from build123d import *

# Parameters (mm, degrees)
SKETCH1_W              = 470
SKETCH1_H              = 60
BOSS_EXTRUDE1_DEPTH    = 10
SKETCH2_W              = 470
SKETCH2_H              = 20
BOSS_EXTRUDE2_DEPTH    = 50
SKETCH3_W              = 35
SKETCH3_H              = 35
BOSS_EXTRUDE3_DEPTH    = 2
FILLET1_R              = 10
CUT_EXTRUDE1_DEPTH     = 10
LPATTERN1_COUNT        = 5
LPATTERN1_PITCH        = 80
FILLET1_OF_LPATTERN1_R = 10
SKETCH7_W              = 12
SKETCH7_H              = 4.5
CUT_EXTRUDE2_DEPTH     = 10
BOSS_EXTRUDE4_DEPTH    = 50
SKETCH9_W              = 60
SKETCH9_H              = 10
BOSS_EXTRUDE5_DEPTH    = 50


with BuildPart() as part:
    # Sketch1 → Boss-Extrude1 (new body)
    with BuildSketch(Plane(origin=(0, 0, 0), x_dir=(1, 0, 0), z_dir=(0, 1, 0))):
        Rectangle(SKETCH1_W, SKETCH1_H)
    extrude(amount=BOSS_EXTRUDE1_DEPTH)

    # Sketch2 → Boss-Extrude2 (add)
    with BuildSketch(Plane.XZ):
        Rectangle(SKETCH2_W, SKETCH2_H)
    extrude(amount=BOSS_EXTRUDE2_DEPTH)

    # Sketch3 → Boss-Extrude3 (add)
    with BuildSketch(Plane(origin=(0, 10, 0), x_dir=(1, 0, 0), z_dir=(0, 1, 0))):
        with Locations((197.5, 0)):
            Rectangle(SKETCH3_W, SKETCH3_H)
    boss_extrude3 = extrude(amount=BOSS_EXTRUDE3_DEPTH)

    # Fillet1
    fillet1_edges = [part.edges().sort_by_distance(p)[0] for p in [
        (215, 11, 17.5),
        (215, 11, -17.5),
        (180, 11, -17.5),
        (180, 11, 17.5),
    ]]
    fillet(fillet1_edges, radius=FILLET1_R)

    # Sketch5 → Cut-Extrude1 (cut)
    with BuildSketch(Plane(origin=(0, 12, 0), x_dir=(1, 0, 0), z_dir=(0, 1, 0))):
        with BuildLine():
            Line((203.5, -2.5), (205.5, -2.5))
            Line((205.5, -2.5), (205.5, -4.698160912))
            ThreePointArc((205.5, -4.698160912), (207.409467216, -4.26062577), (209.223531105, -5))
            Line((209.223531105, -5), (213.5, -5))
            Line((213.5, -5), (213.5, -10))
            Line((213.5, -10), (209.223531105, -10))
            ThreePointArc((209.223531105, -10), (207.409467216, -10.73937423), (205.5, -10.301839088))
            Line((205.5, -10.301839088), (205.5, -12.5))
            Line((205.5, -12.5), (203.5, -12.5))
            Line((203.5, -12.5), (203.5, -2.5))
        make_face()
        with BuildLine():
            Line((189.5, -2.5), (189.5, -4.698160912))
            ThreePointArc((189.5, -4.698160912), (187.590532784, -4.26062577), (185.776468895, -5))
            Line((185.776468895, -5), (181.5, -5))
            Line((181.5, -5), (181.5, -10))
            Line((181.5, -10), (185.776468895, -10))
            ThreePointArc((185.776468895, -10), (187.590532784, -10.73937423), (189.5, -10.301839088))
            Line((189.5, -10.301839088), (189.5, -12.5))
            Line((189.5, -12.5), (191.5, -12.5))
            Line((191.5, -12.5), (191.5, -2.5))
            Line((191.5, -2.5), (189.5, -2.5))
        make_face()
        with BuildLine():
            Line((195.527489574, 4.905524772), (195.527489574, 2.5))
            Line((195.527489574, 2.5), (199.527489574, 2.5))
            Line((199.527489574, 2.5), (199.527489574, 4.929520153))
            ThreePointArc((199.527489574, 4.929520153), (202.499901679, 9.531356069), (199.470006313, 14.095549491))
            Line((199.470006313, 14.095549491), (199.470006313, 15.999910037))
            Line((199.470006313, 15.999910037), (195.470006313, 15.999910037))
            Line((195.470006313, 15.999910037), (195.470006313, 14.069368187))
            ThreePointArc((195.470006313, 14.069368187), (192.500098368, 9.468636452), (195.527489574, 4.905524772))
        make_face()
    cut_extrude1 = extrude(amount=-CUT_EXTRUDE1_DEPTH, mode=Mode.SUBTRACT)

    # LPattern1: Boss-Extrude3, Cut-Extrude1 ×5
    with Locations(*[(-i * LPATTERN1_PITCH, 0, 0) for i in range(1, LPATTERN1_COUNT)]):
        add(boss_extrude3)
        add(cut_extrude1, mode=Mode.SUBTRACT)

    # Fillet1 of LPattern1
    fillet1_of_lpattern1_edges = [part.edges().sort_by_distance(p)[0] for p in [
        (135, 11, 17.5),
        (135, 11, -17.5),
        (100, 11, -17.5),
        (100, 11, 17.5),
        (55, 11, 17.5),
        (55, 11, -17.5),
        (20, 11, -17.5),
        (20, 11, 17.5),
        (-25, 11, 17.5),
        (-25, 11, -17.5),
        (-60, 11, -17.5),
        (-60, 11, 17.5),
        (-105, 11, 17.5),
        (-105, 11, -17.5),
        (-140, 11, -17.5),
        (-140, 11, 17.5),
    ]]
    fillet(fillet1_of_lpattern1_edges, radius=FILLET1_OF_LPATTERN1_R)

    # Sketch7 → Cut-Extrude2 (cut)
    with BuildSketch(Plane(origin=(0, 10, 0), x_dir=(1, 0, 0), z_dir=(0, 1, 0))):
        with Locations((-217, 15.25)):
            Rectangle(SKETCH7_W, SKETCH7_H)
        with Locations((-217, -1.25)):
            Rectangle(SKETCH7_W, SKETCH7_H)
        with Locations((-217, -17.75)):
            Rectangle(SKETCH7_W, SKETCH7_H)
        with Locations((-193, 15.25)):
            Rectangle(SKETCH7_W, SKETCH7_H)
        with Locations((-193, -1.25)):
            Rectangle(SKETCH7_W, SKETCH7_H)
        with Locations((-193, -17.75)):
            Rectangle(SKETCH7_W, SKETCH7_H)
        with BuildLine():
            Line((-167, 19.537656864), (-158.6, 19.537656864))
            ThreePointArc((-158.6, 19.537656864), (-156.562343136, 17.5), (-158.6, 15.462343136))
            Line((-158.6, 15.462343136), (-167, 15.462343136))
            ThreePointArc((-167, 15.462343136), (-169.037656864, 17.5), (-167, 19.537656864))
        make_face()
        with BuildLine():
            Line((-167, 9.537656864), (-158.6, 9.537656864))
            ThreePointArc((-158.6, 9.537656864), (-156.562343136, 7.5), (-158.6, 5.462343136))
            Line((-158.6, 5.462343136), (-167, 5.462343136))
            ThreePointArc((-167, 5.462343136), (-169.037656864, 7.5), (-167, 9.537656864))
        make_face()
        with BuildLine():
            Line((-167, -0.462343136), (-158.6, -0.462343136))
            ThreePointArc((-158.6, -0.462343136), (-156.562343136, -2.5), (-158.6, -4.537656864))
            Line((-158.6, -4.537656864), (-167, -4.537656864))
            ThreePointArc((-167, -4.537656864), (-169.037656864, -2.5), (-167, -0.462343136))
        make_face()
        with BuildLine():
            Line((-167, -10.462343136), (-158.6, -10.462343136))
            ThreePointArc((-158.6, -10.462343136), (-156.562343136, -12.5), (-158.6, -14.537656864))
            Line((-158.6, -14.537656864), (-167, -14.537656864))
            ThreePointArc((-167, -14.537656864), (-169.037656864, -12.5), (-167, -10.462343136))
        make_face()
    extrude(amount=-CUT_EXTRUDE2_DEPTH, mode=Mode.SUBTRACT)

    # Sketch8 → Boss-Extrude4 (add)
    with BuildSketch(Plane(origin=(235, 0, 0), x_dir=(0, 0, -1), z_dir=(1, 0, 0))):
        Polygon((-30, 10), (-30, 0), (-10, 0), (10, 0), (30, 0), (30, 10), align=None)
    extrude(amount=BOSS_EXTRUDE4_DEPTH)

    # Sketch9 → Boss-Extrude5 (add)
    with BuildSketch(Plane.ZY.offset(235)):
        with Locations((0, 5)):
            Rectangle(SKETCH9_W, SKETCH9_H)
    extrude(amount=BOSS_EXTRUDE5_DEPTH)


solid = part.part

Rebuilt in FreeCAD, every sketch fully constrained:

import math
import FreeCAD as App
import Part
import Sketcher

V = App.Vector
Q = App.Units.Quantity


def edges_at(feature, points):
    """Names of the edges that pass closest to the given points."""
    edges = feature.Shape.Edges
    near = lambda p: min(range(len(edges)), key=lambda i: edges[i].distToShape(Part.Vertex(*p))[0])
    return sorted({f"Edge{near(p) + 1}" for p in points})


def add_polygon(sketch, points):
    """Adds a closed chain of lines whose ends are joined by coincident constraints."""
    first, n = sketch.GeometryCount, len(points)
    for a, b in zip(points, points[1:] + points[:1]):
        sketch.addGeometry(Part.LineSegment(App.Vector(*a, 0), App.Vector(*b, 0)), False)
    for i in range(n):
        sketch.addConstraint(Sketcher.Constraint("Coincident", first + i, 2, first + (i + 1) % n, 1))

doc = App.newDocument("Part")
body = doc.addObject("PartDesign::Body", "Body")

# Sketch on XZ plane
sketch1 = body.newObject("Sketcher::SketchObject", "Sketch")
sketch1.AttachmentSupport = (doc.getObject("XZ_Plane"), [""])
sketch1.MapMode = "FlatFace"
add_polygon(sketch1, [(-235, -30), (-235, 30), (235, 30), (235, -30)])  # lines 0-3
sketch1.addConstraint([
    Sketcher.Constraint("Vertical", 0),
    Sketcher.Constraint("Horizontal", 1),
    Sketcher.Constraint("Vertical", 2),
    Sketcher.Constraint("Horizontal", 3),
    Sketcher.Constraint("Symmetric", 0, 2, 2, 2, -1, 1),
    Sketcher.Constraint("DistanceX", 1, 1, 1, 2, Q("470 mm")),
    Sketcher.Constraint("DistanceY", 0, 1, 0, 2, Q("60 mm")),
])
pad1 = body.newObject("PartDesign::Pad", "Pad")
pad1.Profile = sketch1
pad1.Length = 10
pad1.Reversed = True

# Sketch on XZ plane
sketch2 = body.newObject("Sketcher::SketchObject", "Sketch001")
sketch2.AttachmentSupport = (doc.getObject("XZ_Plane"), [""])
sketch2.MapMode = "FlatFace"
add_polygon(sketch2, [(-235, 10), (-235, -10), (235, -10), (235, 10)])  # lines 0-3
sketch2.addConstraint([
    Sketcher.Constraint("Vertical", 0),
    Sketcher.Constraint("Horizontal", 1),
    Sketcher.Constraint("Vertical", 2),
    Sketcher.Constraint("Horizontal", 3),
    Sketcher.Constraint("Symmetric", 0, 2, 2, 2, -1, 1),
    Sketcher.Constraint("DistanceX", 1, 1, 1, 2, Q("470 mm")),
    Sketcher.Constraint("DistanceY", 0, 2, 0, 1, Q("20 mm")),
])
pad2 = body.newObject("PartDesign::Pad", "Pad001")
pad2.Profile = sketch2
pad2.Length = 50

# Sketch on XZ plane
sketch3 = body.newObject("Sketcher::SketchObject", "Sketch002")
sketch3.AttachmentSupport = (doc.getObject("XZ_Plane"), [""])
sketch3.MapMode = "FlatFace"
sketch3.AttachmentOffset = App.Placement(V(0, 0, -10), App.Rotation())
add_polygon(sketch3, [(180, -18), (180, 18), (215, 18), (215, -18)])  # lines 0-3
sketch3.addConstraint([
    Sketcher.Constraint("Vertical", 0),
    Sketcher.Constraint("Horizontal", 1),
    Sketcher.Constraint("Vertical", 2),
    Sketcher.Constraint("Horizontal", 3),
    Sketcher.Constraint("Equal", 3, 0),
    Sketcher.Constraint("DistanceX", 1, 1, 1, 2, Q("35 mm")),
    Sketcher.Constraint("DistanceX", -1, 1, 0, 2, Q("180 mm")),
    Sketcher.Constraint("DistanceY", -1, 1, 0, 2, Q("17.5 mm")),
])
pad3 = body.newObject("PartDesign::Pad", "Pad002")
pad3.Profile = sketch3
pad3.Length = 2
pad3.Reversed = True
doc.recompute()

fillet = body.newObject("PartDesign::Fillet", "Fillet")
fillet.Base = (pad3, edges_at(pad3, [
    (215, 11, 17.5),
    (215, 11, -17.5),
    (180, 11, -17.5),
    (180, 11, 17.5),
]))
fillet.Radius = 10

# Sketch on XZ plane
sketch4 = body.newObject("Sketcher::SketchObject", "Sketch003")
sketch4.AttachmentSupport = (doc.getObject("XZ_Plane"), [""])
sketch4.MapMode = "FlatFace"
sketch4.AttachmentOffset = App.Placement(V(0, 0, -12), App.Rotation())
sketch4.addGeometry([
    Part.LineSegment(V(205.5, 2.5, 0), V(203.5, 2.5, 0)),  # 0
    Part.LineSegment(V(203.5, 2.5, 0), V(203.5, 12.5, 0)),  # 1
    Part.LineSegment(V(203.5, 12.5, 0), V(205.5, 12.5, 0)),  # 2
    Part.LineSegment(V(205.5, 12.5, 0), V(205.5, 10.3, 0)),  # 3
    Part.ArcOfCircle(Part.Circle(V(207.1, 7.5, 0), V(0, 0, 1), 3.2), math.radians(50), math.radians(120)),  # 4
    Part.LineSegment(V(209.2, 10, 0), V(213.5, 10, 0)),  # 5
    Part.LineSegment(V(213.5, 10, 0), V(213.5, 5, 0)),  # 6
    Part.LineSegment(V(213.5, 5, 0), V(209.2, 5, 0)),  # 7
    Part.ArcOfCircle(Part.Circle(V(207.1, 7.5, 0), V(0, 0, 1), 3.2), math.radians(-120), math.radians(-50)),  # 8
    Part.LineSegment(V(205.5, 4.7, 0), V(205.5, 2.5, 0)),  # 9
    Part.LineSegment(V(189.5, 2.5, 0), V(189.5, 4.7, 0)),  # 10
    Part.ArcOfCircle(Part.Circle(V(187.9, 7.5, 0), V(0, 0, 1), 3.2), math.radians(-130), math.radians(-60)),  # 11
    Part.LineSegment(V(185.8, 5, 0), V(181.5, 5, 0)),  # 12
    Part.LineSegment(V(181.5, 5, 0), V(181.5, 10, 0)),  # 13
    Part.LineSegment(V(181.5, 10, 0), V(185.8, 10, 0)),  # 14
    Part.ArcOfCircle(Part.Circle(V(187.9, 7.5, 0), V(0, 0, 1), 3.2), math.radians(60), math.radians(130)),  # 15
    Part.LineSegment(V(189.5, 10.3, 0), V(189.5, 12.5, 0)),  # 16
    Part.LineSegment(V(189.5, 12.5, 0), V(191.5, 12.5, 0)),  # 17
    Part.LineSegment(V(191.5, 12.5, 0), V(191.5, 2.5, 0)),  # 18
    Part.LineSegment(V(191.5, 2.5, 0), V(189.5, 2.5, 0)),  # 19
    Part.LineSegment(V(195.5, -4.9, 0), V(195.5, -2.5, 0)),  # 20
    Part.LineSegment(V(195.5, -2.5, 0), V(199.5, -2.5, 0)),  # 21
    Part.LineSegment(V(199.5, -2.5, 0), V(199.5, -4.9, 0)),  # 22
    Part.ArcOfCircle(Part.Circle(V(197.5, -9.5, 0), V(0, 0, 1), 5), math.radians(-67), math.radians(66)),  # 23
    Part.LineSegment(V(199.5, -14.1, 0), V(199.5, -16, 0)),  # 24
    Part.LineSegment(V(199.5, -16, 0), V(195.5, -16, 0)),  # 25
    Part.LineSegment(V(195.5, -16, 0), V(195.5, -14.1, 0)),  # 26
    Part.ArcOfCircle(Part.Circle(V(197.5, -9.5, 0), V(0, 0, 1), 5), math.radians(113), math.radians(246)),  # 27
], False)
sketch4.addConstraint([
    Sketcher.Constraint("Coincident", 0, 2, 1, 1),
    Sketcher.Constraint("Coincident", 1, 2, 2, 1),
    Sketcher.Constraint("Coincident", 2, 2, 3, 1),
    Sketcher.Constraint("Coincident", 3, 2, 4, 2),
    Sketcher.Constraint("Coincident", 4, 1, 5, 1),
    Sketcher.Constraint("Coincident", 5, 2, 6, 1),
    Sketcher.Constraint("Coincident", 6, 2, 7, 1),
    Sketcher.Constraint("Coincident", 7, 2, 8, 2),
    Sketcher.Constraint("Coincident", 8, 1, 9, 1),
    Sketcher.Constraint("Coincident", 9, 2, 0, 1),
    Sketcher.Constraint("Coincident", 10, 2, 11, 2),
    Sketcher.Constraint("Coincident", 11, 1, 12, 1),
    Sketcher.Constraint("Coincident", 12, 2, 13, 1),
    Sketcher.Constraint("Coincident", 13, 2, 14, 1),
    Sketcher.Constraint("Coincident", 14, 2, 15, 2),
    Sketcher.Constraint("Coincident", 15, 1, 16, 1),
    Sketcher.Constraint("Coincident", 16, 2, 17, 1),
    Sketcher.Constraint("Coincident", 17, 2, 18, 1),
    Sketcher.Constraint("Coincident", 18, 2, 19, 1),
    Sketcher.Constraint("Coincident", 19, 2, 10, 1),
    Sketcher.Constraint("Coincident", 20, 2, 21, 1),
    Sketcher.Constraint("Coincident", 21, 2, 22, 1),
    Sketcher.Constraint("Coincident", 22, 2, 23, 2),
    Sketcher.Constraint("Coincident", 23, 1, 24, 1),
    Sketcher.Constraint("Coincident", 24, 2, 25, 1),
    Sketcher.Constraint("Coincident", 25, 2, 26, 1),
    Sketcher.Constraint("Coincident", 26, 2, 27, 2),
    Sketcher.Constraint("Coincident", 27, 1, 20, 1),
    Sketcher.Constraint("Horizontal", 0),
    Sketcher.Constraint("Vertical", 1),
    Sketcher.Constraint("Horizontal", 2),
    Sketcher.Constraint("Vertical", 3),
    Sketcher.Constraint("Horizontal", 5),
    Sketcher.Constraint("Vertical", 6),
    Sketcher.Constraint("Horizontal", 7),
    Sketcher.Constraint("Vertical", 9),
    Sketcher.Constraint("Vertical", 10),
    Sketcher.Constraint("Horizontal", 12),
    Sketcher.Constraint("Vertical", 13),
    Sketcher.Constraint("Horizontal", 14),
    Sketcher.Constraint("Vertical", 16),
    Sketcher.Constraint("Horizontal", 17),
    Sketcher.Constraint("Vertical", 18),
    Sketcher.Constraint("Horizontal", 19),
    Sketcher.Constraint("Vertical", 20),
    Sketcher.Constraint("Horizontal", 21),
    Sketcher.Constraint("Vertical", 22),
    Sketcher.Constraint("Vertical", 24),
    Sketcher.Constraint("Horizontal", 25),
    Sketcher.Constraint("Vertical", 26),
    Sketcher.Constraint("Coincident", 8, 3, 4, 3),
    Sketcher.Constraint("Coincident", 15, 3, 11, 3),
    Sketcher.Constraint("Coincident", 27, 3, 23, 3),
    Sketcher.Constraint("Equal", 4, 8),
    Sketcher.Constraint("Equal", 8, 11),
    Sketcher.Constraint("Equal", 11, 15),
    Sketcher.Constraint("Equal", 23, 27),
    Sketcher.Constraint("Horizontal", 8, 3, 11, 3),
    Sketcher.Constraint("Horizontal", 8, 1, 10, 2),
    Sketcher.Constraint("Horizontal", 7, 2, 11, 1),
    Sketcher.Constraint("Horizontal", 5, 2, 13, 2),
    Sketcher.Constraint("Horizontal", 3, 2, 15, 1),
    Sketcher.Constraint("Horizontal", 2, 2, 16, 2),
    Sketcher.Constraint("Horizontal", 9, 2, 18, 2),
    Sketcher.Constraint("Vertical", 4, 1, 7, 2),
    Sketcher.Constraint("Vertical", 3, 2, 8, 1),
    Sketcher.Constraint("Equal", 7, 12),
    Sketcher.Constraint("Equal", 2, 17),
    Sketcher.Constraint("Equal", 21, 25),
    Sketcher.Constraint("Equal", 3, 9),
    Sketcher.Constraint("Radius", 23, Q("5 mm")),
    Sketcher.Constraint("DistanceX", 0, 2, 0, 1, Q("2 mm")),
    Sketcher.Constraint("DistanceX", 21, 1, 21, 2, Q("4 mm")),
    Sketcher.Constraint("DistanceY", 1, 1, 1, 2, Q("10 mm")),
    Sketcher.Constraint("DistanceY", 6, 2, 6, 1, Q("5 mm")),
    Sketcher.Constraint("Radius", 4, Q("3.25 mm")),
    Sketcher.Constraint("DistanceY", -1, 1, 4, 1, Q("10 mm")),
    Sketcher.Constraint("DistanceY", 23, 3, 8, 3, Q("17 mm")),
    Sketcher.Constraint("DistanceX", 23, 3, 0, 2, Q("6 mm")),
    Sketcher.Constraint("DistanceX", 3, 2, 5, 2, Q("8 mm")),
    Sketcher.Constraint("DistanceX", 10, 2, 0, 2, Q("14 mm")),
    Sketcher.Constraint("DistanceY", 20, 2, 18, 2, Q("5 mm")),
    Sketcher.Constraint("DistanceX", -1, 1, 23, 3, Q("197.5 mm")),
    Sketcher.Constraint("DistanceX", 5, 1, 5, 2, Q("4.276469 mm")),
    Sketcher.Constraint("DistanceY", 22, 2, 22, 1, Q("2.42952 mm")),
    Sketcher.Constraint("DistanceY", 24, 2, 24, 1, Q("1.904361 mm")),
    Sketcher.Constraint("DistanceY", 26, 1, 26, 2, Q("1.930542 mm")),
])
pocket1 = body.newObject("PartDesign::Pocket", "Pocket")
pocket1.Profile = sketch4
pocket1.Length = 10
pocket1.Reversed = True
doc.recompute()

linearpattern = body.newObject("PartDesign::LinearPattern", "LinearPattern")
linearpattern.Originals = [pad3, pocket1]
linearpattern.Direction = (doc.getObject("X_Axis"), [""])
linearpattern.Mode = "offset"
linearpattern.Offset = 80
linearpattern.Occurrences = 5
linearpattern.Reversed = True
body.Tip = linearpattern
doc.recompute()

fillet2 = body.newObject("PartDesign::Fillet", "Fillet001")
fillet2.Base = (linearpattern, edges_at(linearpattern, [
    (135, 11, 17.5),
    (135, 11, -17.5),
    (100, 11, -17.5),
    (100, 11, 17.5),
    (55, 11, 17.5),
    (55, 11, -17.5),
    (20, 11, -17.5),
    (20, 11, 17.5),
    (-25, 11, 17.5),
    (-25, 11, -17.5),
    (-60, 11, -17.5),
    (-60, 11, 17.5),
    (-105, 11, 17.5),
    (-105, 11, -17.5),
    (-140, 11, -17.5),
    (-140, 11, 17.5),
]))
fillet2.Radius = 10

# Sketch on XZ plane
sketch5 = body.newObject("Sketcher::SketchObject", "Sketch004")
sketch5.AttachmentSupport = (doc.getObject("XZ_Plane"), [""])
sketch5.MapMode = "FlatFace"
sketch5.AttachmentOffset = App.Placement(V(0, 0, -10), App.Rotation())
add_polygon(sketch5, [(-223, -17.5), (-223, -13), (-211, -13), (-211, -17.5)])  # lines 0-3
add_polygon(sketch5, [(-223, -1), (-223, 3.5), (-211, 3.5), (-211, -1)])  # lines 4-7
add_polygon(sketch5, [(-223, 15.5), (-223, 20), (-211, 20), (-211, 15.5)])  # lines 8-11
add_polygon(sketch5, [(-199, -17.5), (-199, -13), (-187, -13), (-187, -17.5)])  # lines 12-15
add_polygon(sketch5, [(-199, -1), (-199, 3.5), (-187, 3.5), (-187, -1)])  # lines 16-19
add_polygon(sketch5, [(-199, 15.5), (-199, 20), (-187, 20), (-187, 15.5)])  # lines 20-23
sketch5.addGeometry(Part.LineSegment(V(-158.6, -19.5, 0), V(-167, -19.5, 0)), False)  # 24
sketch5.addGeometry(Part.ArcOfCircle(Part.Circle(V(-167, -17.5, 0), V(0, 0, 1), 2), math.radians(90), math.radians(270)), False)  # 25
sketch5.addGeometry(Part.LineSegment(V(-167, -15.5, 0), V(-158.6, -15.5, 0)), False)  # 26
sketch5.addGeometry(Part.ArcOfCircle(Part.Circle(V(-158.6, -17.5, 0), V(0, 0, 1), 2), math.radians(-90), math.radians(90)), False)  # 27
sketch5.addGeometry(Part.LineSegment(V(-158.6, -9.5, 0), V(-167, -9.5, 0)), False)  # 28
sketch5.addGeometry(Part.ArcOfCircle(Part.Circle(V(-167, -7.5, 0), V(0, 0, 1), 2), math.radians(90), math.radians(270)), False)  # 29
sketch5.addGeometry(Part.LineSegment(V(-167, -5.5, 0), V(-158.6, -5.5, 0)), False)  # 30
sketch5.addGeometry(Part.ArcOfCircle(Part.Circle(V(-158.6, -7.5, 0), V(0, 0, 1), 2), math.radians(-90), math.radians(90)), False)  # 31
sketch5.addGeometry(Part.LineSegment(V(-158.6, 0.5, 0), V(-167, 0.5, 0)), False)  # 32
sketch5.addGeometry(Part.ArcOfCircle(Part.Circle(V(-167, 2.5, 0), V(0, 0, 1), 2), math.radians(90), math.radians(270)), False)  # 33
sketch5.addGeometry(Part.LineSegment(V(-167, 4.5, 0), V(-158.6, 4.5, 0)), False)  # 34
sketch5.addGeometry(Part.ArcOfCircle(Part.Circle(V(-158.6, 2.5, 0), V(0, 0, 1), 2), math.radians(-90), math.radians(90)), False)  # 35
sketch5.addGeometry(Part.LineSegment(V(-158.6, 10.5, 0), V(-167, 10.5, 0)), False)  # 36
sketch5.addGeometry(Part.ArcOfCircle(Part.Circle(V(-167, 12.5, 0), V(0, 0, 1), 2), math.radians(90), math.radians(270)), False)  # 37
sketch5.addGeometry(Part.LineSegment(V(-167, 14.5, 0), V(-158.6, 14.5, 0)), False)  # 38
sketch5.addGeometry(Part.ArcOfCircle(Part.Circle(V(-158.6, 12.5, 0), V(0, 0, 1), 2), math.radians(-90), math.radians(90)), False)  # 39
sketch5.addConstraint([
    Sketcher.Constraint("Tangent", 24, 2, 25, 2),
    Sketcher.Constraint("Tangent", 25, 1, 26, 1),
    Sketcher.Constraint("Tangent", 26, 2, 27, 2),
    Sketcher.Constraint("Tangent", 27, 1, 24, 1),
    Sketcher.Constraint("Tangent", 28, 2, 29, 2),
    Sketcher.Constraint("Tangent", 29, 1, 30, 1),
    Sketcher.Constraint("Tangent", 30, 2, 31, 2),
    Sketcher.Constraint("Tangent", 31, 1, 28, 1),
    Sketcher.Constraint("Tangent", 32, 2, 33, 2),
    Sketcher.Constraint("Tangent", 33, 1, 34, 1),
    Sketcher.Constraint("Tangent", 34, 2, 35, 2),
    Sketcher.Constraint("Tangent", 35, 1, 32, 1),
    Sketcher.Constraint("Tangent", 36, 2, 37, 2),
    Sketcher.Constraint("Tangent", 37, 1, 38, 1),
    Sketcher.Constraint("Tangent", 38, 2, 39, 2),
    Sketcher.Constraint("Tangent", 39, 1, 36, 1),
    Sketcher.Constraint("Vertical", 0),
    Sketcher.Constraint("Horizontal", 1),
    Sketcher.Constraint("Vertical", 2),
    Sketcher.Constraint("Horizontal", 3),
    Sketcher.Constraint("Vertical", 4),
    Sketcher.Constraint("Horizontal", 5),
    Sketcher.Constraint("Vertical", 6),
    Sketcher.Constraint("Horizontal", 7),
    Sketcher.Constraint("Vertical", 8),
    Sketcher.Constraint("Horizontal", 9),
    Sketcher.Constraint("Vertical", 10),
    Sketcher.Constraint("Horizontal", 11),
    Sketcher.Constraint("Vertical", 12),
    Sketcher.Constraint("Horizontal", 13),
    Sketcher.Constraint("Vertical", 14),
    Sketcher.Constraint("Horizontal", 15),
    Sketcher.Constraint("Vertical", 16),
    Sketcher.Constraint("Horizontal", 17),
    Sketcher.Constraint("Vertical", 18),
    Sketcher.Constraint("Horizontal", 19),
    Sketcher.Constraint("Vertical", 20),
    Sketcher.Constraint("Horizontal", 21),
    Sketcher.Constraint("Vertical", 22),
    Sketcher.Constraint("Horizontal", 23),
    Sketcher.Constraint("Horizontal", 24),
    Sketcher.Constraint("Horizontal", 26),
    Sketcher.Constraint("Horizontal", 28),
    Sketcher.Constraint("Horizontal", 30),
    Sketcher.Constraint("Horizontal", 32),
    Sketcher.Constraint("Horizontal", 34),
    Sketcher.Constraint("Horizontal", 36),
    Sketcher.Constraint("Horizontal", 38),
    Sketcher.Constraint("Equal", 27, 29),
    Sketcher.Constraint("Equal", 31, 33),
    Sketcher.Constraint("Equal", 35, 37),
    Sketcher.Constraint("Horizontal", 27, 3, 2, 2),
    Sketcher.Constraint("Horizontal", 1, 2, 12, 2),
    Sketcher.Constraint("Horizontal", 3, 2, 14, 2),
    Sketcher.Constraint("Horizontal", 5, 2, 16, 2),
    Sketcher.Constraint("Horizontal", 7, 2, 18, 2),
    Sketcher.Constraint("Horizontal", 9, 2, 20, 2),
    Sketcher.Constraint("Horizontal", 11, 2, 22, 2),
    Sketcher.Constraint("Vertical", 25, 3, 29, 3),
    Sketcher.Constraint("Vertical", 27, 3, 31, 3),
    Sketcher.Constraint("Vertical", 29, 3, 33, 3),
    Sketcher.Constraint("Vertical", 31, 3, 35, 3),
    Sketcher.Constraint("Vertical", 33, 3, 37, 3),
    Sketcher.Constraint("Vertical", 35, 3, 39, 3),
    Sketcher.Constraint("Vertical", 3, 2, 4, 2),
    Sketcher.Constraint("Vertical", 2, 2, 5, 2),
    Sketcher.Constraint("Vertical", 7, 2, 8, 2),
    Sketcher.Constraint("Vertical", 6, 2, 9, 2),
    Sketcher.Constraint("Vertical", 15, 2, 16, 2),
    Sketcher.Constraint("Vertical", 14, 2, 17, 2),
    Sketcher.Constraint("Vertical", 19, 2, 20, 2),
    Sketcher.Constraint("Vertical", 18, 2, 21, 2),
    Sketcher.Constraint("Equal", 11, 13),
    Sketcher.Constraint("Equal", 2, 4),
    Sketcher.Constraint("Equal", 6, 8),
    Sketcher.Constraint("DistanceX", 1, 1, 1, 2, Q("12 mm")),
    Sketcher.Constraint("DistanceX", 24, 2, 24, 1, Q("8.4 mm")),
    Sketcher.Constraint("DistanceY", 0, 1, 0, 2, Q("4.5 mm")),
    Sketcher.Constraint("DistanceX", 25, 3, -1, 1, Q("167 mm")),
    Sketcher.Constraint("DistanceX", 0, 2, -1, 1, Q("223 mm")),
    Sketcher.Constraint("DistanceY", 0, 2, -1, 1, Q("13 mm")),
    Sketcher.Constraint("DistanceY", 6, 2, -1, 1, Q("1 mm")),
    Sketcher.Constraint("DistanceY", -1, 1, 8, 2, Q("20 mm")),
    Sketcher.Constraint("DistanceX", 12, 2, -1, 1, Q("199 mm")),
    Sketcher.Constraint("DistanceY", 25, 3, 29, 3, Q("10 mm")),
    Sketcher.Constraint("DistanceY", 29, 3, 33, 3, Q("10 mm")),
    Sketcher.Constraint("DistanceY", 33, 3, 37, 3, Q("10 mm")),
    Sketcher.Constraint("Radius", 25, Q("2.037657 mm")),
])
pocket2 = body.newObject("PartDesign::Pocket", "Pocket001")
pocket2.Profile = sketch5
pocket2.Length = 10
pocket2.Reversed = True

# Sketch on YZ plane
sketch6 = body.newObject("Sketcher::SketchObject", "Sketch005")
sketch6.AttachmentSupport = (doc.getObject("YZ_Plane"), [""])
sketch6.MapMode = "FlatFace"
sketch6.AttachmentOffset = App.Placement(V(0, 0, 235), App.Rotation())
add_polygon(sketch6, [(10, 30), (0, 30), (0, -30), (10, -30)])  # lines 0-3
sketch6.addConstraint([
    Sketcher.Constraint("Horizontal", 0),
    Sketcher.Constraint("Vertical", 1),
    Sketcher.Constraint("Horizontal", 2),
    Sketcher.Constraint("Vertical", 3),
    Sketcher.Constraint("Symmetric", 0, 2, 1, 2, -1, 1),
    Sketcher.Constraint("DistanceX", 0, 2, 0, 1, Q("10 mm")),
    Sketcher.Constraint("DistanceY", 1, 2, 1, 1, Q("60 mm")),
])
pad4 = body.newObject("PartDesign::Pad", "Pad003")
pad4.Profile = sketch6
pad4.Length = 50

# Sketch on YZ plane
sketch7 = body.newObject("Sketcher::SketchObject", "Sketch006")
sketch7.AttachmentSupport = (doc.getObject("YZ_Plane"), [""])
sketch7.MapMode = "FlatFace"
sketch7.AttachmentOffset = App.Placement(V(0, 0, -235), App.Rotation())
add_polygon(sketch7, [(10, -30), (0, -30), (0, 30), (10, 30)])  # lines 0-3
sketch7.addConstraint([
    Sketcher.Constraint("Horizontal", 0),
    Sketcher.Constraint("Vertical", 1),
    Sketcher.Constraint("Horizontal", 2),
    Sketcher.Constraint("Vertical", 3),
    Sketcher.Constraint("Symmetric", 0, 2, 1, 2, -1, 1),
    Sketcher.Constraint("DistanceX", 0, 2, 0, 1, Q("10 mm")),
    Sketcher.Constraint("DistanceY", 1, 1, 1, 2, Q("60 mm")),
])
pad5 = body.newObject("PartDesign::Pad", "Pad004")
pad5.Profile = sketch7
pad5.Length = 50
pad5.Reversed = True

doc.recompute()
